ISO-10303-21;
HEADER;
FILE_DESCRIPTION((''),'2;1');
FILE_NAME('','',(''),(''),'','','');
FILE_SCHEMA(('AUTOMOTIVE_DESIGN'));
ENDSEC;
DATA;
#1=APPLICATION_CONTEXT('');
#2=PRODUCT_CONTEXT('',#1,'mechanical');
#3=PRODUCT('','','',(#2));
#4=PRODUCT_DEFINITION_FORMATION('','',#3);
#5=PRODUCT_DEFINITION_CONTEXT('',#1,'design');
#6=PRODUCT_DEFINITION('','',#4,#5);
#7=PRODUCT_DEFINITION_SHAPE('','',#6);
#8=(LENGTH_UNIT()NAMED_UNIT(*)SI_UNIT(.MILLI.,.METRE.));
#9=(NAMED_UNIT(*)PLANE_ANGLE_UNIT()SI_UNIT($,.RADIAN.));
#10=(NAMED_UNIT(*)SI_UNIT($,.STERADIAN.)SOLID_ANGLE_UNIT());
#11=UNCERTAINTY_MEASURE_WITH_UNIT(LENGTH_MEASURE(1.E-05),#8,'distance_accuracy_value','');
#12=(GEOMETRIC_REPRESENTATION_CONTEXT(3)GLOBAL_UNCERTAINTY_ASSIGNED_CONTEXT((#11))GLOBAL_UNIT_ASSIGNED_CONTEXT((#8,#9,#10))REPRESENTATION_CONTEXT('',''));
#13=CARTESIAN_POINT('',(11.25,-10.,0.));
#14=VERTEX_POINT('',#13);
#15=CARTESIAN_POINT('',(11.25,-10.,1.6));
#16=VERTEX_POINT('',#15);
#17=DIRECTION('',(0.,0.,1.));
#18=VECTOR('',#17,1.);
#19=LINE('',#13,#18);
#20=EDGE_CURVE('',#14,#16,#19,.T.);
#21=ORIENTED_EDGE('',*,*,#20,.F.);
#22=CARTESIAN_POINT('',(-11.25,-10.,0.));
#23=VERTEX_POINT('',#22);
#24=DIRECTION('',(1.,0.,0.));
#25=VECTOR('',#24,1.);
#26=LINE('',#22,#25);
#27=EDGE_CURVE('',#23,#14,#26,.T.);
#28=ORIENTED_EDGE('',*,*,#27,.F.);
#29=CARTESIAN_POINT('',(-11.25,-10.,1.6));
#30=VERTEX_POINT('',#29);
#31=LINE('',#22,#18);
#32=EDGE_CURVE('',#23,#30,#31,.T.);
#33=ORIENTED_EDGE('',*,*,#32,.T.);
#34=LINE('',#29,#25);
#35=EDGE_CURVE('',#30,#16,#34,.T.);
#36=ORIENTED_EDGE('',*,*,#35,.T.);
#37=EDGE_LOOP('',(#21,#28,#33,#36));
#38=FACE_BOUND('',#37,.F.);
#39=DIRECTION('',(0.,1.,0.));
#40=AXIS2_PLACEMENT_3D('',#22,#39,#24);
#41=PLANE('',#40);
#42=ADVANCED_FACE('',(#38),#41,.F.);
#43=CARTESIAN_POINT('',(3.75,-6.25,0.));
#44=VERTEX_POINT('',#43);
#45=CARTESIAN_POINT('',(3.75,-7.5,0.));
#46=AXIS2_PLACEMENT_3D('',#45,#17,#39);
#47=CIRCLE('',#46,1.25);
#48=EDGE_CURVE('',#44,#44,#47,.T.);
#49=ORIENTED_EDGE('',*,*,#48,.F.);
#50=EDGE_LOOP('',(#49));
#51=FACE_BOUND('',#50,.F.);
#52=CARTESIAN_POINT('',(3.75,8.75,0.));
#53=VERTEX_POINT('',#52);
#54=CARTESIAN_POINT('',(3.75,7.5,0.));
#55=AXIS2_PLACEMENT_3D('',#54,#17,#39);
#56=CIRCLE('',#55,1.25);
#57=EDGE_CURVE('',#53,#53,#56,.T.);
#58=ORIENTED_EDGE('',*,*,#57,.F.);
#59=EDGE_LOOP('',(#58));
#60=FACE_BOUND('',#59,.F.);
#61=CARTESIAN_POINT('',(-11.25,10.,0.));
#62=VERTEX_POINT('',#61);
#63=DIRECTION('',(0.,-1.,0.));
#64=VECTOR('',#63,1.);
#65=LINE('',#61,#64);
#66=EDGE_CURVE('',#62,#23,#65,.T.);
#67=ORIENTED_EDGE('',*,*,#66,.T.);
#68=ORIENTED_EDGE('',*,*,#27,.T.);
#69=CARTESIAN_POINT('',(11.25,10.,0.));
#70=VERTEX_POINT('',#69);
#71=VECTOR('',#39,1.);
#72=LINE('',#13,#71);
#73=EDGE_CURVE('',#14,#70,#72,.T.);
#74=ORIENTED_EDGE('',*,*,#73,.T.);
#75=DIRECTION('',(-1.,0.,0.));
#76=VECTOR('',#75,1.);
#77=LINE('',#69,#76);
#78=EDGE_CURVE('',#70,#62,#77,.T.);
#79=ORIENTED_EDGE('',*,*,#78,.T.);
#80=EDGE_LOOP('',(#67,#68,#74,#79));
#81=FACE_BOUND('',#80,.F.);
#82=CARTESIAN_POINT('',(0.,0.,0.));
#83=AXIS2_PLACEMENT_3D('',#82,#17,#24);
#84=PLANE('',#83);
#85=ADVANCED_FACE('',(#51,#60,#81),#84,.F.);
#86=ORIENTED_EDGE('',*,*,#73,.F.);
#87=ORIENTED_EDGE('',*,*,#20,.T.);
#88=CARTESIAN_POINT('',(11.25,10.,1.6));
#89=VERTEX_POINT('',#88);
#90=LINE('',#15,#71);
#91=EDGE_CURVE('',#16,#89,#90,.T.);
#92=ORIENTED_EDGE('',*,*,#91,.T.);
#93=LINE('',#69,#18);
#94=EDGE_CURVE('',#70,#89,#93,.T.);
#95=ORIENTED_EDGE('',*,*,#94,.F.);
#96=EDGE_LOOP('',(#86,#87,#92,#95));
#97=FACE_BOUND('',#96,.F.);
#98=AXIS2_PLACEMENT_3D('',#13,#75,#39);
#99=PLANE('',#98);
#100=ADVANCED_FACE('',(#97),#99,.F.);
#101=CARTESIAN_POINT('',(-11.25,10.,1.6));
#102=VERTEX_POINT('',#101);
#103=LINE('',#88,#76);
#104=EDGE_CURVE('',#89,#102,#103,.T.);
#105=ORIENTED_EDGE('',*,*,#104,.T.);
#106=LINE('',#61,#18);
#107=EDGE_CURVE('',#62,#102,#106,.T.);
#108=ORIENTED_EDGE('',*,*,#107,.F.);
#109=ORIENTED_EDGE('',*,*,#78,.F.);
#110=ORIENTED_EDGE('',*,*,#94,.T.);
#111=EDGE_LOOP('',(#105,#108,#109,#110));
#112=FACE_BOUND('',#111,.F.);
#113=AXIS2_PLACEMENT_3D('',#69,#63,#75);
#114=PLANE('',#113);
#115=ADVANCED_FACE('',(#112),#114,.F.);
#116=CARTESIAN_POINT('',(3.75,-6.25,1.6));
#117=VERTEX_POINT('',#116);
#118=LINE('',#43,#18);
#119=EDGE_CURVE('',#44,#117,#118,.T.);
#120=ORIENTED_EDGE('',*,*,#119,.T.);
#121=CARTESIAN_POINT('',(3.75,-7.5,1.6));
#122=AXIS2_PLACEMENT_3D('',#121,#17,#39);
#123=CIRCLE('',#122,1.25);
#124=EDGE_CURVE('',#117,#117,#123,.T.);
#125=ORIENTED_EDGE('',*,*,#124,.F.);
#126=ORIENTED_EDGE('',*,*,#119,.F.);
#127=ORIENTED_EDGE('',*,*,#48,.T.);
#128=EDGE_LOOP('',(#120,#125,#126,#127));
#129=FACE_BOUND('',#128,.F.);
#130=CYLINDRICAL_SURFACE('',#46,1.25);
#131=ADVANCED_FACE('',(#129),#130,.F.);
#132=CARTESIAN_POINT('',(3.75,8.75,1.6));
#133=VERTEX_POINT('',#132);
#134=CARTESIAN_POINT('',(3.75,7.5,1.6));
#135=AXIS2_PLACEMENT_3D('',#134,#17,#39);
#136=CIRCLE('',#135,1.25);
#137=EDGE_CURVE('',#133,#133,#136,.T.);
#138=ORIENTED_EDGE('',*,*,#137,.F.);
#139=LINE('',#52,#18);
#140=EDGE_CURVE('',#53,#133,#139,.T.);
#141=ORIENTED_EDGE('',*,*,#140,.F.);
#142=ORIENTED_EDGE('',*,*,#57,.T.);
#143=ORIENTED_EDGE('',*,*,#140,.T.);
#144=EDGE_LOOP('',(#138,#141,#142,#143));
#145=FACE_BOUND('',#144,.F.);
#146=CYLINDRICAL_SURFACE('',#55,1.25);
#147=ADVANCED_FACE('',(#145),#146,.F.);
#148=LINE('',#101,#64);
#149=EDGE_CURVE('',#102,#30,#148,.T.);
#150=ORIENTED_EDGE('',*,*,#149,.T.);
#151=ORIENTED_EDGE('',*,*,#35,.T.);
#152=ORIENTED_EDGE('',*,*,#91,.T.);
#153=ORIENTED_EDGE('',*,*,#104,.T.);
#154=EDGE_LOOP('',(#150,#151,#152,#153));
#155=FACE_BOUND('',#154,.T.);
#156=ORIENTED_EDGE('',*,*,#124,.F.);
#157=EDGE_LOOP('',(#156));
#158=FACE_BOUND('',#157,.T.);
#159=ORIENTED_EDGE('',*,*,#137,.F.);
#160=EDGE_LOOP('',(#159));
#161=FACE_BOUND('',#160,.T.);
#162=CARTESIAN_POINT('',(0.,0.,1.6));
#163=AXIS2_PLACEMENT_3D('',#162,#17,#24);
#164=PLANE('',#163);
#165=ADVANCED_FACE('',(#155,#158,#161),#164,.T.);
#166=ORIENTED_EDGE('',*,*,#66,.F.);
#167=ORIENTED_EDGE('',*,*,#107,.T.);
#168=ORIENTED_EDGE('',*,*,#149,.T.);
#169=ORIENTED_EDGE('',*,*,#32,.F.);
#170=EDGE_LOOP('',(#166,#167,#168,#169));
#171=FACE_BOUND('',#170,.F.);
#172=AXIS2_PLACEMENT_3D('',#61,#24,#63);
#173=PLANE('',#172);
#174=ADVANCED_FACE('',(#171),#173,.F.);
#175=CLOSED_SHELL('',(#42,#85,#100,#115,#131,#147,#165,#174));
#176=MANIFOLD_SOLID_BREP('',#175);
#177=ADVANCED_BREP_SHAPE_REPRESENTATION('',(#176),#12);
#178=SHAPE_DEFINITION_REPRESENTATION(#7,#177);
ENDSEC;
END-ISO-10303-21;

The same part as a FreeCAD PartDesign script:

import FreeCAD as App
import Part
import Sketcher


def add_polygon(sketch, points):
    """Adds a closed chain of lines whose ends are joined by coincident constraints."""
    first, n = sketch.GeometryCount, len(points)
    for a, b in zip(points, points[1:] + points[:1]):
        sketch.addGeometry(Part.LineSegment(App.Vector(*a, 0), App.Vector(*b, 0)), False)
    for i in range(n):
        sketch.addConstraint(Sketcher.Constraint("Coincident", first + i, 2, first + (i + 1) % n, 1))

doc = App.newDocument("Part")
body = doc.addObject("PartDesign::Body", "Body")

sketch1 = doc.addObject("Sketcher::SketchObject", "Sketch")
body.addObject(sketch1)
sketch1.AttachmentSupport = (doc.XY_Plane, [""])
sketch1.MapMode = "FlatFace"
add_polygon(sketch1, [(11, -10), (11, 10), (-11, 10), (-11, -10)])
sketch1.addConstraint(Sketcher.Constraint("Vertical", 0))
sketch1.addConstraint(Sketcher.Constraint("Horizontal", 1))
sketch1.addConstraint(Sketcher.Constraint("Vertical", 2))
sketch1.addConstraint(Sketcher.Constraint("Horizontal", 3))
sketch1.addConstraint(Sketcher.Constraint("Symmetric", 0, 2, 2, 2, -1, 1))
sketch1.addConstraint(Sketcher.Constraint("DistanceY", 0, 1, 0, 2, 20.0))
sketch1.addConstraint(Sketcher.Constraint("DistanceX", 1, 2, 1, 1, 22.5))
pad1 = doc.addObject("PartDesign::Pad", "Pad")
body.addObject(pad1)
pad1.Profile = sketch1
pad1.Length = 1.6

sketch2 = doc.addObject("Sketcher::SketchObject", "Sketch001")
body.addObject(sketch2)
sketch2.AttachmentSupport = (doc.XY_Plane, [""])
sketch2.MapMode = "FlatFace"
sketch2.addGeometry(Part.Circle(App.Vector(3.8, -7.5, 0), App.Vector(0, 0, 1), 1.2), False)
sketch2.addGeometry(Part.Circle(App.Vector(3.8, 7.5, 0), App.Vector(0, 0, 1), 1.2), False)
sketch2.addConstraint(Sketcher.Constraint("Equal", 0, 1))
sketch2.addConstraint(Sketcher.Constraint("Symmetric", 0, 3, 1, 3, -1))
sketch2.addConstraint(Sketcher.Constraint("Diameter", 0, 2.5))
sketch2.addConstraint(Sketcher.Constraint("DistanceY", 0, 3, 1, 3, 15.0))
sketch2.addConstraint(Sketcher.Constraint("DistanceX", -1, 1, 0, 3, 3.75))
doc.recompute()
hole = doc.addObject("PartDesign::Hole", "Hole")
body.addObject(hole)
hole.Profile = sketch2
hole.ThreadType = "None"
hole.Diameter = 2.5
hole.DepthType = "ThroughAll"
hole.Reversed = True

doc.recompute()
